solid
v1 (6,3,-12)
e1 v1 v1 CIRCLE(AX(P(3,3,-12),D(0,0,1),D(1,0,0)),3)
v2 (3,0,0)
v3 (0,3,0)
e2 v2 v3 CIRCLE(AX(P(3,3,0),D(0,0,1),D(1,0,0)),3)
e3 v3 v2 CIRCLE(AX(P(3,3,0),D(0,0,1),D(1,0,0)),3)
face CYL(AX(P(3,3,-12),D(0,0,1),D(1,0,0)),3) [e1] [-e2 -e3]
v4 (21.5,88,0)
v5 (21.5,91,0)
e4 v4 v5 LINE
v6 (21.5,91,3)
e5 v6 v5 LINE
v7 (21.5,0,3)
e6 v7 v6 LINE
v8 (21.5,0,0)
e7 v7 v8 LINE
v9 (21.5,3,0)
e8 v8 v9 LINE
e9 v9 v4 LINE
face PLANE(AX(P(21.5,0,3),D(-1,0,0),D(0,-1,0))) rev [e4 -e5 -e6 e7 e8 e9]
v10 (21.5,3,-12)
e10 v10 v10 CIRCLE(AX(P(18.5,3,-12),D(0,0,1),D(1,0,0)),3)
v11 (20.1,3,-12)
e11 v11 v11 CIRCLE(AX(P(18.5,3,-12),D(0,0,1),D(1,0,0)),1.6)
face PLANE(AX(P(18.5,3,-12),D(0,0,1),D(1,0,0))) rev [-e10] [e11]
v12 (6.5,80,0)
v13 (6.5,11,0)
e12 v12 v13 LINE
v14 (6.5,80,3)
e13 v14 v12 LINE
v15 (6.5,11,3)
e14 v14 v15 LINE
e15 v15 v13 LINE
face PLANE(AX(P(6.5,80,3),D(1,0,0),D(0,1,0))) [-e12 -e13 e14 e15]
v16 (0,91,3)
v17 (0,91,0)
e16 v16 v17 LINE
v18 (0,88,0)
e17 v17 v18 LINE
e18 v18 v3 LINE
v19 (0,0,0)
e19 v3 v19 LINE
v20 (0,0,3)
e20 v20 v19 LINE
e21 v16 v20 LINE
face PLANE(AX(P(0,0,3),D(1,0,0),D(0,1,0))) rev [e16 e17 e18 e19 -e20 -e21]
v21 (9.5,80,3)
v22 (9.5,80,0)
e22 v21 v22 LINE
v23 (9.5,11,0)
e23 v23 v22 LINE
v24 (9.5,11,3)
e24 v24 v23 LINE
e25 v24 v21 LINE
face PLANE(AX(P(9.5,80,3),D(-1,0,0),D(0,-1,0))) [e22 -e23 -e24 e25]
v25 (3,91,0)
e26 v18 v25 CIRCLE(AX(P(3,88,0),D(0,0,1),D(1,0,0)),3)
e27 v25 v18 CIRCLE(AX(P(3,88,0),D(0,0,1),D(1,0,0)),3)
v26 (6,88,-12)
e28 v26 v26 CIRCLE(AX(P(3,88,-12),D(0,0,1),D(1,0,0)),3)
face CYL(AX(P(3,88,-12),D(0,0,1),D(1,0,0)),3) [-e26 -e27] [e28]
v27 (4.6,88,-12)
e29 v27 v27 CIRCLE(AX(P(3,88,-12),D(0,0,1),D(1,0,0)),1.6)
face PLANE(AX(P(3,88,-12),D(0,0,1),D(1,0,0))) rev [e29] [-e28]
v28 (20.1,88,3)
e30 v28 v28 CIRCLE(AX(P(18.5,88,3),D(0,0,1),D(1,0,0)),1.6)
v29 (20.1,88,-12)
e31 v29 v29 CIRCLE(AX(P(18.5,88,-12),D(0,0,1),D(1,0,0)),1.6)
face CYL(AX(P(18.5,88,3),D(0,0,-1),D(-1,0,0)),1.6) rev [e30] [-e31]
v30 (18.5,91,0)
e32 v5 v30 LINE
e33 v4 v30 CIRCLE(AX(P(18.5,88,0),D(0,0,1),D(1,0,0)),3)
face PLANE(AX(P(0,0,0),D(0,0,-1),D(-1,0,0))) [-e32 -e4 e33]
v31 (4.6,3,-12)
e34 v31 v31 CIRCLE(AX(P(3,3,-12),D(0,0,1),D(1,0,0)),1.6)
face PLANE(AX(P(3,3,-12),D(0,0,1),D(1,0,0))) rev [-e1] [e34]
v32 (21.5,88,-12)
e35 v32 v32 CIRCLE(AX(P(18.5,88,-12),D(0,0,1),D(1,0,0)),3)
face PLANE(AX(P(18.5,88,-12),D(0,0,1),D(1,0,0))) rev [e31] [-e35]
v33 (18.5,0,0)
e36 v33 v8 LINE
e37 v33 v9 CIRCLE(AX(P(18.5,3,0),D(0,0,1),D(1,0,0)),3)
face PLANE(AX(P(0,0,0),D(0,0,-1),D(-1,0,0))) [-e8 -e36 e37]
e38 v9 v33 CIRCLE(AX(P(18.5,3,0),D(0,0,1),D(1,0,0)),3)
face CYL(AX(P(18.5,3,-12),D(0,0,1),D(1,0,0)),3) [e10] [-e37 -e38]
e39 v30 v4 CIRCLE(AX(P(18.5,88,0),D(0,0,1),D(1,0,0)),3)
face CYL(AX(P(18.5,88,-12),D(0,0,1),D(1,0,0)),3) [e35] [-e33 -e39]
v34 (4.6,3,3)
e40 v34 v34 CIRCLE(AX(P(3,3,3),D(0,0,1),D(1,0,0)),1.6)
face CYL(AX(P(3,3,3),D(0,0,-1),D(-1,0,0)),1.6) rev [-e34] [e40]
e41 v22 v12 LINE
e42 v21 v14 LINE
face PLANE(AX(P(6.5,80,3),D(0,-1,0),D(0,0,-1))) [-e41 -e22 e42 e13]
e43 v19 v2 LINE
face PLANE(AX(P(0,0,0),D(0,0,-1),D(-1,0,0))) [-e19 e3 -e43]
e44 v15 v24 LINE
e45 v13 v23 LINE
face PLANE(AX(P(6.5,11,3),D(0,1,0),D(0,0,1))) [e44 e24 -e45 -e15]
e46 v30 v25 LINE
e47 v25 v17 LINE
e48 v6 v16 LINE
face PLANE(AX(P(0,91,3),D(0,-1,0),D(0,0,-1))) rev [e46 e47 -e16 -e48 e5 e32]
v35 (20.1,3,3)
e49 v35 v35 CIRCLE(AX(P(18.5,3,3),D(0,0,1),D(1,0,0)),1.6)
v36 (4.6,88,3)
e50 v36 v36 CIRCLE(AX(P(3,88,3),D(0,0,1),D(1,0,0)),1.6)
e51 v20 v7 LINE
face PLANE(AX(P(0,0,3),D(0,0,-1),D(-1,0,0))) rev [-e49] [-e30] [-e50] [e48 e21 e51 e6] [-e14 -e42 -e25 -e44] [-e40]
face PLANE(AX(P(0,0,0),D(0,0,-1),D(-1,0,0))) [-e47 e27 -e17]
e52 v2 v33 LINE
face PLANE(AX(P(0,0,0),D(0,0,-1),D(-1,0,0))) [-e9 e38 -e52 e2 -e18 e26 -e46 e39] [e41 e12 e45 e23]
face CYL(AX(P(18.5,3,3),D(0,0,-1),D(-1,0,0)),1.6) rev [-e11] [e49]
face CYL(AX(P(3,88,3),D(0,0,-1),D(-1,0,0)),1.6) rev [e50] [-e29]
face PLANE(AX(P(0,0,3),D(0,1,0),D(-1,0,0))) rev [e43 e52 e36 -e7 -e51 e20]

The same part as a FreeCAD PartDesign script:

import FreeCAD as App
import Part
import Sketcher

V = App.Vector


def add_polygon(sketch, points):
    """Adds a closed chain of lines whose ends are joined by coincident constraints."""
    first, n = sketch.GeometryCount, len(points)
    for a, b in zip(points, points[1:] + points[:1]):
        sketch.addGeometry(Part.LineSegment(App.Vector(*a, 0), App.Vector(*b, 0)), False)
    for i in range(n):
        sketch.addConstraint(Sketcher.Constraint("Coincident", first + i, 2, first + (i + 1) % n, 1))

doc = App.newDocument("Part")
body = doc.addObject("PartDesign::Body", "Body")

# Sketch on XY plane
sketch1 = doc.addObject("Sketcher::SketchObject", "Sketch")
body.addObject(sketch1)
sketch1.AttachmentSupport = (doc.XY_Plane, [""])
sketch1.MapMode = "FlatFace"
add_polygon(sketch1, [(0, 91), (0, 0), (21.5, 0), (21.5, 91)])  # lines 0-3
sketch1.addGeometry(Part.Circle(V(3, 3, 0), V(0, 0, 1), 1.6), False)  # 4
sketch1.addGeometry(Part.Circle(V(18.5, 3, 0), V(0, 0, 1), 1.6), False)  # 5
add_polygon(sketch1, [(9.5, 11), (6.5, 11), (6.5, 80), (9.5, 80)])  # lines 6-9
sketch1.addGeometry(Part.Circle(V(3, 88, 0), V(0, 0, 1), 1.6), False)  # 10
sketch1.addGeometry(Part.Circle(V(18.5, 88, 0), V(0, 0, 1), 1.6), False)  # 11
sketch1.addConstraint([
    Sketcher.Constraint("Vertical", 0),
    Sketcher.Constraint("Horizontal", 1),
    Sketcher.Constraint("Vertical", 2),
    Sketcher.Constraint("Horizontal", 3),
    Sketcher.Constraint("Horizontal", 6),
    Sketcher.Constraint("Vertical", 7),
    Sketcher.Constraint("Horizontal", 8),
    Sketcher.Constraint("Vertical", 9),
    Sketcher.Constraint("Coincident", 0, 2, -1, 1),
    Sketcher.Constraint("Equal", 4, 5),
    Sketcher.Constraint("Equal", 5, 10),
    Sketcher.Constraint("Equal", 10, 11),
    Sketcher.Constraint("Horizontal", 4, 3, 5, 3),
    Sketcher.Constraint("Horizontal", 10, 3, 11, 3),
    Sketcher.Constraint("Vertical", 4, 3, 10, 3),
    Sketcher.Constraint("Vertical", 5, 3, 11, 3),
    Sketcher.Constraint("Diameter", 4, 3.2),
    Sketcher.Constraint("DistanceX", 6, 2, 6, 1, 3.0),
    Sketcher.Constraint("DistanceY", 0, 2, 0, 1, 91.0),
    Sketcher.Constraint("DistanceY", 7, 1, 7, 2, 69.0),
    Sketcher.Constraint("DistanceX", 1, 1, 1, 2, 21.5),
    Sketcher.Constraint("DistanceX", -1, 1, 4, 3, 3.0),
    Sketcher.Constraint("DistanceY", -1, 1, 4, 3, 3.0),
    Sketcher.Constraint("DistanceY", -1, 1, 10, 3, 88.0),
    Sketcher.Constraint("DistanceY", -1, 1, 6, 2, 11.0),
    Sketcher.Constraint("DistanceX", 5, 3, 1, 2, 3.0),
    Sketcher.Constraint("DistanceX", 6, 2, 5, 3, 12.0),
])
pad1 = doc.addObject("PartDesign::Pad", "Pad")
body.addObject(pad1)
pad1.Profile = sketch1
pad1.Length = 3

# Sketch on XY plane
sketch2 = doc.addObject("Sketcher::SketchObject", "Sketch001")
body.addObject(sketch2)
sketch2.AttachmentSupport = (doc.XY_Plane, [""])
sketch2.MapMode = "FlatFace"
sketch2.AttachmentOffset = App.Placement(V(0, 0, -12), App.Rotation())
sketch2.addGeometry([
    Part.Circle(V(3, 3, 0), V(0, 0, 1), 3),  # 0
    Part.Circle(V(3, 3, 0), V(0, 0, 1), 1.6),  # 1
    Part.Circle(V(18.5, 3, 0), V(0, 0, 1), 3),  # 2
    Part.Circle(V(18.5, 3, 0), V(0, 0, 1), 1.6),  # 3
    Part.Circle(V(18.5, 88, 0), V(0, 0, 1), 3),  # 4
    Part.Circle(V(18.5, 88, 0), V(0, 0, 1), 1.6),  # 5
    Part.Circle(V(3, 88, 0), V(0, 0, 1), 3),  # 6
    Part.Circle(V(3, 88, 0), V(0, 0, 1), 1.6),  # 7
], False)
sketch2.addConstraint([
    Sketcher.Constraint("Coincident", 1, 3, 0, 3),
    Sketcher.Constraint("Coincident", 3, 3, 2, 3),
    Sketcher.Constraint("Coincident", 5, 3, 4, 3),
    Sketcher.Constraint("Coincident", 7, 3, 6, 3),
    Sketcher.Constraint("Equal", 0, 2),
    Sketcher.Constraint("Equal", 1, 3),
    Sketcher.Constraint("Equal", 2, 4),
    Sketcher.Constraint("Equal", 3, 5),
    Sketcher.Constraint("Equal", 4, 6),
    Sketcher.Constraint("Equal", 5, 7),
    Sketcher.Constraint("Horizontal", 1, 3, 2, 3),
    Sketcher.Constraint("Horizontal", 5, 3, 6, 3),
    Sketcher.Constraint("Vertical", 3, 3, 4, 3),
    Sketcher.Constraint("Vertical", 1, 3, 6, 3),
    Sketcher.Constraint("Diameter", 0, 6.0),
    Sketcher.Constraint("Diameter", 1, 3.2),
    Sketcher.Constraint("DistanceX", -1, 1, 0, 3, 3.0),
    Sketcher.Constraint("DistanceY", -1, 1, 0, 3, 3.0),
    Sketcher.Constraint("DistanceY", -1, 1, 4, 3, 88.0),
    Sketcher.Constraint("DistanceX", -1, 1, 2, 3, 18.5),
])
pad2 = doc.addObject("PartDesign::Pad", "Pad001")
body.addObject(pad2)
pad2.Profile = sketch2
pad2.Length = 12

doc.recompute()
